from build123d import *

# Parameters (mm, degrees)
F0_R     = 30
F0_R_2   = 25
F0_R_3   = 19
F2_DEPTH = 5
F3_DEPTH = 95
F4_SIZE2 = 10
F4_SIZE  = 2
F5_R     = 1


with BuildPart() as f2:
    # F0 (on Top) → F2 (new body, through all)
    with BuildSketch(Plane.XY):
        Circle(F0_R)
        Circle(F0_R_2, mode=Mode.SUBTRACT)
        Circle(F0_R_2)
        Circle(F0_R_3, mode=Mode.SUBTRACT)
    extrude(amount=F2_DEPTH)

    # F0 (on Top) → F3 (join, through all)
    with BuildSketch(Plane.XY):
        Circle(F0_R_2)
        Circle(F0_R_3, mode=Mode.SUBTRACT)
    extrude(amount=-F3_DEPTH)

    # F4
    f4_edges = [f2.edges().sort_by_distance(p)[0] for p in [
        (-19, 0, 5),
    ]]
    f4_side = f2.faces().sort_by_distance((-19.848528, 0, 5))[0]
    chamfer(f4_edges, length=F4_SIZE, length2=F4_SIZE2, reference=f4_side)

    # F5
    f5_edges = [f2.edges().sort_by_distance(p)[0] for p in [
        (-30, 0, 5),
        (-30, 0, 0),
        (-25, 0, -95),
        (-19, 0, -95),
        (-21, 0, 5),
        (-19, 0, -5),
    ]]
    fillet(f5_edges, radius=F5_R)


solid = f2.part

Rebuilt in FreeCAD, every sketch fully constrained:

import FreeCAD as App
import Part
import Sketcher
from FreeCAD import Vector


def edges_at(feature, points):
    """Names of the edges that pass closest to the given points."""
    edges = feature.Shape.Edges
    near = lambda p: min(range(len(edges)), key=lambda i: edges[i].distToShape(Part.Vertex(*p))[0])
    return sorted({f"Edge{near(p) + 1}" for p in points})

doc = App.newDocument("Part")
body = doc.addObject("PartDesign::Body", "Body")

# Sketch on XY plane
sketch1 = body.newObject("Sketcher::SketchObject", "Sketch")
sketch1.AttachmentSupport = (doc.getObject("XY_Plane"), [""])
sketch1.MapMode = "FlatFace"
sketch1.addGeometry([
    Part.Circle(Vector(0, 0, 0), Vector(0, 0, 1), 30),
    Part.Circle(Vector(0, 0, 0), Vector(0, 0, 1), 19),
], False)
sketch1.addConstraint([
    Sketcher.Constraint("Coincident", 0, 3, -1, 1),
    Sketcher.Constraint("Coincident", 1, 3, -1, 1),
    Sketcher.Constraint("Diameter", 0, 60.0),
    Sketcher.Constraint("Diameter", 1, 38.0),
])
pad1 = body.newObject("PartDesign::Pad", "Pad")
pad1.Profile = sketch1
pad1.Length = 5

# Sketch on XY plane
sketch2 = body.newObject("Sketcher::SketchObject", "Sketch001")
sketch2.AttachmentSupport = (doc.getObject("XY_Plane"), [""])
sketch2.MapMode = "FlatFace"
sketch2.addGeometry([
    Part.Circle(Vector(0, 0, 0), Vector(0, 0, 1), 25),
    Part.Circle(Vector(0, 0, 0), Vector(0, 0, 1), 19),
], False)
sketch2.addConstraint([
    Sketcher.Constraint("Coincident", 0, 3, -1, 1),
    Sketcher.Constraint("Coincident", 1, 3, -1, 1),
    Sketcher.Constraint("Diameter", 0, 50.0),
    Sketcher.Constraint("Diameter", 1, 38.0),
])
pad2 = body.newObject("PartDesign::Pad", "Pad001")
pad2.Profile = sketch2
pad2.Length = 95
pad2.Reversed = True
doc.recompute()

chamfer = body.newObject("PartDesign::Chamfer", "Chamfer")
chamfer.Base = (pad2, edges_at(pad2, [(-19, 0, 5)]))
chamfer.ChamferType = "Two distances"
chamfer.Size = 2
chamfer.Size2 = 10
doc.recompute()

fillet = body.newObject("PartDesign::Fillet", "Fillet")
fillet.Base = (chamfer, edges_at(chamfer, [
    (-30, 0, 5),
    (-30, 0, 0),
    (-25, 0, -95),
    (-19, 0, -95),
    (-21, 0, 5),
    (-19, 0, -5),
]))
fillet.Radius = 1

doc.recompute()
